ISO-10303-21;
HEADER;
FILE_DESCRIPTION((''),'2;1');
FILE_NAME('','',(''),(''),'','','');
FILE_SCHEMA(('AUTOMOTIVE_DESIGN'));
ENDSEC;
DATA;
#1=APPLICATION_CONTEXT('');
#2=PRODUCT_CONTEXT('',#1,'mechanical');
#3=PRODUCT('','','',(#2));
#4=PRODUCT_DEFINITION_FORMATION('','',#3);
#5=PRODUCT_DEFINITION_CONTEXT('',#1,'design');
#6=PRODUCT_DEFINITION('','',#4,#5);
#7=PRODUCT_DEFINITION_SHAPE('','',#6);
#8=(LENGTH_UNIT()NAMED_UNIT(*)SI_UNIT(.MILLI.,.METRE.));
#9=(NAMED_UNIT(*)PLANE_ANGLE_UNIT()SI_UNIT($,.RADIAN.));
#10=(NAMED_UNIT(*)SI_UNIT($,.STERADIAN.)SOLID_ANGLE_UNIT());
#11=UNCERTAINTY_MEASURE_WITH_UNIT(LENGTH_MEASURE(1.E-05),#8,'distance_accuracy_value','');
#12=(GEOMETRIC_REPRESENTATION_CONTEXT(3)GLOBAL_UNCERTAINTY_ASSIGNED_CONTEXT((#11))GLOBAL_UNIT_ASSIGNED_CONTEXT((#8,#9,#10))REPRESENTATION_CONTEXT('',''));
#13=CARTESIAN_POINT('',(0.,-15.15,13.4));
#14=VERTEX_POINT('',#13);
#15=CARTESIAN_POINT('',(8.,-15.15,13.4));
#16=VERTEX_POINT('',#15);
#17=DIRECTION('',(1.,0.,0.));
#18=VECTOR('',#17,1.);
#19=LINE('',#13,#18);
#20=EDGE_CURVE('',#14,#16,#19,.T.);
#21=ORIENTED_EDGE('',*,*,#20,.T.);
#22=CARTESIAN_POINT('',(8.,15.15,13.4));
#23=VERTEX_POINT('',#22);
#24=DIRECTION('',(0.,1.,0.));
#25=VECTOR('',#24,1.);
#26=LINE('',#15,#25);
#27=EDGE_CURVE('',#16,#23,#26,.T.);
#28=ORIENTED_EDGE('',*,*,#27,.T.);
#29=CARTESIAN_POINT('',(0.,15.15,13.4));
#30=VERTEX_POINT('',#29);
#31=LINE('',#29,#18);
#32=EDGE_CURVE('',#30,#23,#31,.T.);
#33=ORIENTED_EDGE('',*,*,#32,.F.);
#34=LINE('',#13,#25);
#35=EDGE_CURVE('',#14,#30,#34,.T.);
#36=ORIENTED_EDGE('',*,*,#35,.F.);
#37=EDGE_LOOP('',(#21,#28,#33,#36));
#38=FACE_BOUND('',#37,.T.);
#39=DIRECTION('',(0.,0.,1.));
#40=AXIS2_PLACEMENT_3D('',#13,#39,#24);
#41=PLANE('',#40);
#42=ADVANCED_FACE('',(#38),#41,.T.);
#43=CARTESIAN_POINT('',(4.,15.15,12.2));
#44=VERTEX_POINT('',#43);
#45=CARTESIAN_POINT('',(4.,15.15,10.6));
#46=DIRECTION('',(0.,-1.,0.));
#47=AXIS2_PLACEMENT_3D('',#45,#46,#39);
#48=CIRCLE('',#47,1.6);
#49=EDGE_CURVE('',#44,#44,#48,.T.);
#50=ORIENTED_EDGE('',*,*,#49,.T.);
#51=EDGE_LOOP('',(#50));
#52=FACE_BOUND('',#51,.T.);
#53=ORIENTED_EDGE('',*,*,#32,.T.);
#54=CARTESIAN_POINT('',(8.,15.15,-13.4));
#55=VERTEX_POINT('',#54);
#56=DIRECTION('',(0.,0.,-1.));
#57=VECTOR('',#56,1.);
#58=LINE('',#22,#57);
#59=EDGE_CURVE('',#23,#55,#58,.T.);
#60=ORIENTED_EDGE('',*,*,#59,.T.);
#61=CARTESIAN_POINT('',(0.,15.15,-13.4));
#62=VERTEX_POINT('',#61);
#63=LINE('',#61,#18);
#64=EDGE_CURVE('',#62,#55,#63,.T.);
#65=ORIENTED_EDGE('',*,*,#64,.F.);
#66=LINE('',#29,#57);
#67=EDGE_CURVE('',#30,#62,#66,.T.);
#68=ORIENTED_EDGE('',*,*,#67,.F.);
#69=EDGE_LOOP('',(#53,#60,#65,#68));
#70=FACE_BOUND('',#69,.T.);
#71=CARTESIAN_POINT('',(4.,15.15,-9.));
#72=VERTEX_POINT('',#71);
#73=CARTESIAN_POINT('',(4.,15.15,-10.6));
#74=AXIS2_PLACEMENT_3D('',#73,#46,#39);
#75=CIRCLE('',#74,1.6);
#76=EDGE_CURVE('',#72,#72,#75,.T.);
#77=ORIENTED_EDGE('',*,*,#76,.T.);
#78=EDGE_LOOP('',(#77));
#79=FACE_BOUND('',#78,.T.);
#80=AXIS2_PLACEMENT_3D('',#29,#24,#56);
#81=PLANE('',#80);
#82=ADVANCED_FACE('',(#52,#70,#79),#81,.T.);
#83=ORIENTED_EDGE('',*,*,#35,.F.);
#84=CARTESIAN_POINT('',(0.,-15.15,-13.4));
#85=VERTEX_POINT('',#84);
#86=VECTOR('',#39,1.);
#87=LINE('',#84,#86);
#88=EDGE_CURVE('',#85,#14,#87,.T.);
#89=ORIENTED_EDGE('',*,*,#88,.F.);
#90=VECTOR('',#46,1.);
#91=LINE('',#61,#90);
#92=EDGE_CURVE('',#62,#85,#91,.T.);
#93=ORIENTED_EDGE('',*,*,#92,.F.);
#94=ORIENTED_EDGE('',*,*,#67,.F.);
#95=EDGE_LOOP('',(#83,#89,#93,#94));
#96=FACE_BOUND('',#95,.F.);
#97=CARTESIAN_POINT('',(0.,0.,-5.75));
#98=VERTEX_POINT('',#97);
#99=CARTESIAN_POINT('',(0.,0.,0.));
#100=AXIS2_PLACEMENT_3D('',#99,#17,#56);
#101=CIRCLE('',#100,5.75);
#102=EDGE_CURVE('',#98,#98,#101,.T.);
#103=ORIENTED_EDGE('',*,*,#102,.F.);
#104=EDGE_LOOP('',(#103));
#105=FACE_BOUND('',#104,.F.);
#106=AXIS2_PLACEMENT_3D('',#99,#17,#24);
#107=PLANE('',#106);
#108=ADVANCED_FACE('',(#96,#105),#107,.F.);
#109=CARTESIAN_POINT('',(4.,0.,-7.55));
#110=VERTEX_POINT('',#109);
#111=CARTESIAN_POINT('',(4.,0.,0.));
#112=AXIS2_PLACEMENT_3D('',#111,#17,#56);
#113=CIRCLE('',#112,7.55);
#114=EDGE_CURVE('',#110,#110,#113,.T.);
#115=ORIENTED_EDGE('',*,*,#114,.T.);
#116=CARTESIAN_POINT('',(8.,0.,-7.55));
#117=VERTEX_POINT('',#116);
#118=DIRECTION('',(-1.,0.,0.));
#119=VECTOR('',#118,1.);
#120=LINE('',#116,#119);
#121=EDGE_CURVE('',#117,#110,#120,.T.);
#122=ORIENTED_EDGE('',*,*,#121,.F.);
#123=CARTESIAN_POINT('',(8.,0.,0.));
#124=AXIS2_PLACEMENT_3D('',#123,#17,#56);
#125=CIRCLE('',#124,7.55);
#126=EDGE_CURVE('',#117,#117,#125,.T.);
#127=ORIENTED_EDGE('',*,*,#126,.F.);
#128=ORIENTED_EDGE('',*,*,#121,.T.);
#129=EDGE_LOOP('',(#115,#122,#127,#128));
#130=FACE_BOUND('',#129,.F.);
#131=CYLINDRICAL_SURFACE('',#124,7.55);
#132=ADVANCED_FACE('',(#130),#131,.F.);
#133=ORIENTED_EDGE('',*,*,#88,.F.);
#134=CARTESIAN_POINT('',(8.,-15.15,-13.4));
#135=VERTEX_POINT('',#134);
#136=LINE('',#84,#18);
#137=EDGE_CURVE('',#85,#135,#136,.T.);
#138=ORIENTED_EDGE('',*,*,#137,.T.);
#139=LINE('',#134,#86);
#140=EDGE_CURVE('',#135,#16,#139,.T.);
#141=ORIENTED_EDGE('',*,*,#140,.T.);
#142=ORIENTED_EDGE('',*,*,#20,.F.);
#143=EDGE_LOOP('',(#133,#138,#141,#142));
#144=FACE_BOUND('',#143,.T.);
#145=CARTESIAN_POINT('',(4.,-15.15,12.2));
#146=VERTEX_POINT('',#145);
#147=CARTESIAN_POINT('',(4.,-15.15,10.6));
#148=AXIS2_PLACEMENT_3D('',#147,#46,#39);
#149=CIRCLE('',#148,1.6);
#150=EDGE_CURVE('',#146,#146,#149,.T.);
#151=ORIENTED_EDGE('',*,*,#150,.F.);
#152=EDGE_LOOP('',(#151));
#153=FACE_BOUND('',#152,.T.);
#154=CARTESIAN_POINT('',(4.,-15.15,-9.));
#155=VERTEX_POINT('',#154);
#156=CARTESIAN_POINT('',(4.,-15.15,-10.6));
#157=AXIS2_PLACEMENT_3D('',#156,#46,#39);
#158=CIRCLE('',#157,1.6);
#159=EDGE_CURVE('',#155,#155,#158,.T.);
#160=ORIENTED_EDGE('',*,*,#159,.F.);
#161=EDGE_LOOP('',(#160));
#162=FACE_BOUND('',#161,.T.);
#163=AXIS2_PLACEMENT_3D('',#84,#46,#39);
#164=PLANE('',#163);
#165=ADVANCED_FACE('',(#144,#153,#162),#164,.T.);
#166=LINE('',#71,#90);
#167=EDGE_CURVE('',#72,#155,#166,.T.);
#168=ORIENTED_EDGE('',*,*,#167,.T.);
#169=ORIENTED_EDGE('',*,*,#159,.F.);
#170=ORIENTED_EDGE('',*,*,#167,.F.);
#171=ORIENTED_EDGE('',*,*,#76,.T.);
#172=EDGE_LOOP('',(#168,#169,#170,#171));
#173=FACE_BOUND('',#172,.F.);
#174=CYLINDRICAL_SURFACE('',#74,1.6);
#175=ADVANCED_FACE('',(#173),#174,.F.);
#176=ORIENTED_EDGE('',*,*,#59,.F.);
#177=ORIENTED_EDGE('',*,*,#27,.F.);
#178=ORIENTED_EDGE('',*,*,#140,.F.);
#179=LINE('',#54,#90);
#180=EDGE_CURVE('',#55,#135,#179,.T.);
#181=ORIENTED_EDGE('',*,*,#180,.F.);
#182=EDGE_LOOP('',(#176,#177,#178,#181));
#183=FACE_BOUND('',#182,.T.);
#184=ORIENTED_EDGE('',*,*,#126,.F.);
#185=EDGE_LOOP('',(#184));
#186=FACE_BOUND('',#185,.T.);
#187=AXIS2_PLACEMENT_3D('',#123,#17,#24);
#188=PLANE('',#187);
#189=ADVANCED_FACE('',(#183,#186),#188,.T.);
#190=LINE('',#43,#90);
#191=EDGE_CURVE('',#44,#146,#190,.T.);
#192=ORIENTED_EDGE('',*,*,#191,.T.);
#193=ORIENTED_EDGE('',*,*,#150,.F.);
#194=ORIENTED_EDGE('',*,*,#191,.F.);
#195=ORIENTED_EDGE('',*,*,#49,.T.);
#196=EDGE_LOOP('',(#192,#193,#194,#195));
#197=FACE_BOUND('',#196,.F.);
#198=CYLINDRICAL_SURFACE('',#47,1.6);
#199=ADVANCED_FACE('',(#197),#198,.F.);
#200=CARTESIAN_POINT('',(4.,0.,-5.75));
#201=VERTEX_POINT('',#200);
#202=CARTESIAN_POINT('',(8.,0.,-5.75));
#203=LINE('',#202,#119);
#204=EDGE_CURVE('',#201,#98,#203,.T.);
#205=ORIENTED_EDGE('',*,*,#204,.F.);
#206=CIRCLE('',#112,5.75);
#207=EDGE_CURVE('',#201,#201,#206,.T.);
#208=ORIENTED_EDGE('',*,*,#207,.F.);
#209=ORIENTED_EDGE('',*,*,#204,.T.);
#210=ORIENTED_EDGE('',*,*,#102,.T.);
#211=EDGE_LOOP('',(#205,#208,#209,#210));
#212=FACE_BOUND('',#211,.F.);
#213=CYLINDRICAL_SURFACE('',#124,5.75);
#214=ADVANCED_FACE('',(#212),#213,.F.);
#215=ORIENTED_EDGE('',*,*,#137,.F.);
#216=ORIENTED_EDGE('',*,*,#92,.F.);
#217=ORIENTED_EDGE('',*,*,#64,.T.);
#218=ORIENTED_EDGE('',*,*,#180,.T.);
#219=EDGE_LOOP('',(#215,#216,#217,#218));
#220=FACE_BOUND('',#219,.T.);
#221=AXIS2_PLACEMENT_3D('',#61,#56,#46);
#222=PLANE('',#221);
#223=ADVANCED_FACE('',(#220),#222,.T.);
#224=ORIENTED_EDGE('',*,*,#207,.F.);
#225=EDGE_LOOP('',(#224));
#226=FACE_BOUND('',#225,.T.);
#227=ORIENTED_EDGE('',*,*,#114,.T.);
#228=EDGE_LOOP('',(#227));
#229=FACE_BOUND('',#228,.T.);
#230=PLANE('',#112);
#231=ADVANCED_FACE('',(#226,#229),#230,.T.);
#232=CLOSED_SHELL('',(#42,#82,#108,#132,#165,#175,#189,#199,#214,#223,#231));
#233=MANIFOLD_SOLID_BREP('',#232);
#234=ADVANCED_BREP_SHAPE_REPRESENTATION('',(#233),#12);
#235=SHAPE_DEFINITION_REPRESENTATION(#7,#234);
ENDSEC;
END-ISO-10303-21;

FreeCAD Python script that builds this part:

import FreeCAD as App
import Part
import Sketcher

doc = App.newDocument("Part")
body = doc.addObject("PartDesign::Body", "Body")

# Sketch on YZ plane
sketch1 = doc.addObject("Sketcher::SketchObject", "Sketch")
body.addObject(sketch1)
sketch1.AttachmentSupport = (doc.YZ_Plane, [""])
sketch1.MapMode = "FlatFace"
sketch1.addGeometry([
    Part.LineSegment(App.Vector(15, 13, 0), App.Vector(-15, 13, 0)),
    Part.LineSegment(App.Vector(-15, 13, 0), App.Vector(-15, -13, 0)),
    Part.LineSegment(App.Vector(-15, -13, 0), App.Vector(15, -13, 0)),
    Part.LineSegment(App.Vector(15, -13, 0), App.Vector(15, 13, 0)),
], False)
sketch1.addConstraint([
    Sketcher.Constraint("Coincident", 0, 2, 1, 1),
    Sketcher.Constraint("Coincident", 1, 2, 2, 1),
    Sketcher.Constraint("Coincident", 2, 2, 3, 1),
    Sketcher.Constraint("Coincident", 3, 2, 0, 1),
    Sketcher.Constraint("Horizontal", 0),
    Sketcher.Constraint("Vertical", 1),
    Sketcher.Constraint("Horizontal", 2),
    Sketcher.Constraint("Vertical", 3),
    Sketcher.Constraint("Symmetric", 0, 2, 2, 2, -1, 1),
    Sketcher.Constraint("DistanceX", 0, 2, 0, 1, 30.3),
    Sketcher.Constraint("DistanceY", 1, 2, 1, 1, 26.8),
])
pad1 = doc.addObject("PartDesign::Pad", "Pad")
body.addObject(pad1)
pad1.Profile = sketch1
pad1.Length = 8

# Sketch on XZ plane
sketch2 = doc.addObject("Sketcher::SketchObject", "Sketch001")
body.addObject(sketch2)
sketch2.AttachmentSupport = (doc.XZ_Plane, [""])
sketch2.MapMode = "FlatFace"
sketch2.AttachmentOffset = App.Placement(App.Vector(0, 0, -15.15), App.Rotation())
sketch2.addGeometry([
    Part.Circle(App.Vector(4, 10.6, 0), App.Vector(0, 0, 1), 1.6),
    Part.Circle(App.Vector(4, -10.6, 0), App.Vector(0, 0, 1), 1.6),
], False)
sketch2.addConstraint([
    Sketcher.Constraint("Equal", 0, 1),
    Sketcher.Constraint("Symmetric", 0, 3, 1, 3, -1),
    Sketcher.Constraint("Diameter", 0, 3.2),
    Sketcher.Constraint("DistanceX", -1, 1, 0, 3, 4.0),
    Sketcher.Constraint("DistanceY", -1, 1, 0, 3, 10.6),
])
doc.recompute()
hole = doc.addObject("PartDesign::Hole", "Hole")
body.addObject(hole)
hole.Profile = sketch2
hole.ThreadType = "None"
hole.Diameter = 3.2
hole.DepthType = "ThroughAll"
hole.Reversed = True

# Sketch on YZ plane
sketch3 = doc.addObject("Sketcher::SketchObject", "Sketch002")
body.addObject(sketch3)
sketch3.AttachmentSupport = (doc.YZ_Plane, [""])
sketch3.MapMode = "FlatFace"
sketch3.AttachmentOffset = App.Placement(App.Vector(0, 0, 8), App.Rotation())
sketch3.addGeometry(Part.Circle(App.Vector(0, 0, 0), App.Vector(0, 0, 1), 6), False)
sketch3.addConstraint([
    Sketcher.Constraint("Coincident", 0, 3, -1, 1),
    Sketcher.Constraint("Diameter", 0, 11.5),
])
pocket1 = doc.addObject("PartDesign::Pocket", "Pocket")
body.addObject(pocket1)
pocket1.Profile = sketch3
pocket1.Type = "ThroughAll"

# Sketch on YZ plane
sketch4 = doc.addObject("Sketcher::SketchObject", "Sketch003")
body.addObject(sketch4)
sketch4.AttachmentSupport = (doc.YZ_Plane, [""])
sketch4.MapMode = "FlatFace"
sketch4.AttachmentOffset = App.Placement(App.Vector(0, 0, 8), App.Rotation())
sketch4.addGeometry(Part.Circle(App.Vector(0, 0, 0), App.Vector(0, 0, 1), 8), False)
sketch4.addConstraint([
    Sketcher.Constraint("Coincident", 0, 3, -1, 1),
    Sketcher.Constraint("Diameter", 0, 15.1),
])
pocket2 = doc.addObject("PartDesign::Pocket", "Pocket001")
body.addObject(pocket2)
pocket2.Profile = sketch4
pocket2.Length = 4

doc.recompute()
